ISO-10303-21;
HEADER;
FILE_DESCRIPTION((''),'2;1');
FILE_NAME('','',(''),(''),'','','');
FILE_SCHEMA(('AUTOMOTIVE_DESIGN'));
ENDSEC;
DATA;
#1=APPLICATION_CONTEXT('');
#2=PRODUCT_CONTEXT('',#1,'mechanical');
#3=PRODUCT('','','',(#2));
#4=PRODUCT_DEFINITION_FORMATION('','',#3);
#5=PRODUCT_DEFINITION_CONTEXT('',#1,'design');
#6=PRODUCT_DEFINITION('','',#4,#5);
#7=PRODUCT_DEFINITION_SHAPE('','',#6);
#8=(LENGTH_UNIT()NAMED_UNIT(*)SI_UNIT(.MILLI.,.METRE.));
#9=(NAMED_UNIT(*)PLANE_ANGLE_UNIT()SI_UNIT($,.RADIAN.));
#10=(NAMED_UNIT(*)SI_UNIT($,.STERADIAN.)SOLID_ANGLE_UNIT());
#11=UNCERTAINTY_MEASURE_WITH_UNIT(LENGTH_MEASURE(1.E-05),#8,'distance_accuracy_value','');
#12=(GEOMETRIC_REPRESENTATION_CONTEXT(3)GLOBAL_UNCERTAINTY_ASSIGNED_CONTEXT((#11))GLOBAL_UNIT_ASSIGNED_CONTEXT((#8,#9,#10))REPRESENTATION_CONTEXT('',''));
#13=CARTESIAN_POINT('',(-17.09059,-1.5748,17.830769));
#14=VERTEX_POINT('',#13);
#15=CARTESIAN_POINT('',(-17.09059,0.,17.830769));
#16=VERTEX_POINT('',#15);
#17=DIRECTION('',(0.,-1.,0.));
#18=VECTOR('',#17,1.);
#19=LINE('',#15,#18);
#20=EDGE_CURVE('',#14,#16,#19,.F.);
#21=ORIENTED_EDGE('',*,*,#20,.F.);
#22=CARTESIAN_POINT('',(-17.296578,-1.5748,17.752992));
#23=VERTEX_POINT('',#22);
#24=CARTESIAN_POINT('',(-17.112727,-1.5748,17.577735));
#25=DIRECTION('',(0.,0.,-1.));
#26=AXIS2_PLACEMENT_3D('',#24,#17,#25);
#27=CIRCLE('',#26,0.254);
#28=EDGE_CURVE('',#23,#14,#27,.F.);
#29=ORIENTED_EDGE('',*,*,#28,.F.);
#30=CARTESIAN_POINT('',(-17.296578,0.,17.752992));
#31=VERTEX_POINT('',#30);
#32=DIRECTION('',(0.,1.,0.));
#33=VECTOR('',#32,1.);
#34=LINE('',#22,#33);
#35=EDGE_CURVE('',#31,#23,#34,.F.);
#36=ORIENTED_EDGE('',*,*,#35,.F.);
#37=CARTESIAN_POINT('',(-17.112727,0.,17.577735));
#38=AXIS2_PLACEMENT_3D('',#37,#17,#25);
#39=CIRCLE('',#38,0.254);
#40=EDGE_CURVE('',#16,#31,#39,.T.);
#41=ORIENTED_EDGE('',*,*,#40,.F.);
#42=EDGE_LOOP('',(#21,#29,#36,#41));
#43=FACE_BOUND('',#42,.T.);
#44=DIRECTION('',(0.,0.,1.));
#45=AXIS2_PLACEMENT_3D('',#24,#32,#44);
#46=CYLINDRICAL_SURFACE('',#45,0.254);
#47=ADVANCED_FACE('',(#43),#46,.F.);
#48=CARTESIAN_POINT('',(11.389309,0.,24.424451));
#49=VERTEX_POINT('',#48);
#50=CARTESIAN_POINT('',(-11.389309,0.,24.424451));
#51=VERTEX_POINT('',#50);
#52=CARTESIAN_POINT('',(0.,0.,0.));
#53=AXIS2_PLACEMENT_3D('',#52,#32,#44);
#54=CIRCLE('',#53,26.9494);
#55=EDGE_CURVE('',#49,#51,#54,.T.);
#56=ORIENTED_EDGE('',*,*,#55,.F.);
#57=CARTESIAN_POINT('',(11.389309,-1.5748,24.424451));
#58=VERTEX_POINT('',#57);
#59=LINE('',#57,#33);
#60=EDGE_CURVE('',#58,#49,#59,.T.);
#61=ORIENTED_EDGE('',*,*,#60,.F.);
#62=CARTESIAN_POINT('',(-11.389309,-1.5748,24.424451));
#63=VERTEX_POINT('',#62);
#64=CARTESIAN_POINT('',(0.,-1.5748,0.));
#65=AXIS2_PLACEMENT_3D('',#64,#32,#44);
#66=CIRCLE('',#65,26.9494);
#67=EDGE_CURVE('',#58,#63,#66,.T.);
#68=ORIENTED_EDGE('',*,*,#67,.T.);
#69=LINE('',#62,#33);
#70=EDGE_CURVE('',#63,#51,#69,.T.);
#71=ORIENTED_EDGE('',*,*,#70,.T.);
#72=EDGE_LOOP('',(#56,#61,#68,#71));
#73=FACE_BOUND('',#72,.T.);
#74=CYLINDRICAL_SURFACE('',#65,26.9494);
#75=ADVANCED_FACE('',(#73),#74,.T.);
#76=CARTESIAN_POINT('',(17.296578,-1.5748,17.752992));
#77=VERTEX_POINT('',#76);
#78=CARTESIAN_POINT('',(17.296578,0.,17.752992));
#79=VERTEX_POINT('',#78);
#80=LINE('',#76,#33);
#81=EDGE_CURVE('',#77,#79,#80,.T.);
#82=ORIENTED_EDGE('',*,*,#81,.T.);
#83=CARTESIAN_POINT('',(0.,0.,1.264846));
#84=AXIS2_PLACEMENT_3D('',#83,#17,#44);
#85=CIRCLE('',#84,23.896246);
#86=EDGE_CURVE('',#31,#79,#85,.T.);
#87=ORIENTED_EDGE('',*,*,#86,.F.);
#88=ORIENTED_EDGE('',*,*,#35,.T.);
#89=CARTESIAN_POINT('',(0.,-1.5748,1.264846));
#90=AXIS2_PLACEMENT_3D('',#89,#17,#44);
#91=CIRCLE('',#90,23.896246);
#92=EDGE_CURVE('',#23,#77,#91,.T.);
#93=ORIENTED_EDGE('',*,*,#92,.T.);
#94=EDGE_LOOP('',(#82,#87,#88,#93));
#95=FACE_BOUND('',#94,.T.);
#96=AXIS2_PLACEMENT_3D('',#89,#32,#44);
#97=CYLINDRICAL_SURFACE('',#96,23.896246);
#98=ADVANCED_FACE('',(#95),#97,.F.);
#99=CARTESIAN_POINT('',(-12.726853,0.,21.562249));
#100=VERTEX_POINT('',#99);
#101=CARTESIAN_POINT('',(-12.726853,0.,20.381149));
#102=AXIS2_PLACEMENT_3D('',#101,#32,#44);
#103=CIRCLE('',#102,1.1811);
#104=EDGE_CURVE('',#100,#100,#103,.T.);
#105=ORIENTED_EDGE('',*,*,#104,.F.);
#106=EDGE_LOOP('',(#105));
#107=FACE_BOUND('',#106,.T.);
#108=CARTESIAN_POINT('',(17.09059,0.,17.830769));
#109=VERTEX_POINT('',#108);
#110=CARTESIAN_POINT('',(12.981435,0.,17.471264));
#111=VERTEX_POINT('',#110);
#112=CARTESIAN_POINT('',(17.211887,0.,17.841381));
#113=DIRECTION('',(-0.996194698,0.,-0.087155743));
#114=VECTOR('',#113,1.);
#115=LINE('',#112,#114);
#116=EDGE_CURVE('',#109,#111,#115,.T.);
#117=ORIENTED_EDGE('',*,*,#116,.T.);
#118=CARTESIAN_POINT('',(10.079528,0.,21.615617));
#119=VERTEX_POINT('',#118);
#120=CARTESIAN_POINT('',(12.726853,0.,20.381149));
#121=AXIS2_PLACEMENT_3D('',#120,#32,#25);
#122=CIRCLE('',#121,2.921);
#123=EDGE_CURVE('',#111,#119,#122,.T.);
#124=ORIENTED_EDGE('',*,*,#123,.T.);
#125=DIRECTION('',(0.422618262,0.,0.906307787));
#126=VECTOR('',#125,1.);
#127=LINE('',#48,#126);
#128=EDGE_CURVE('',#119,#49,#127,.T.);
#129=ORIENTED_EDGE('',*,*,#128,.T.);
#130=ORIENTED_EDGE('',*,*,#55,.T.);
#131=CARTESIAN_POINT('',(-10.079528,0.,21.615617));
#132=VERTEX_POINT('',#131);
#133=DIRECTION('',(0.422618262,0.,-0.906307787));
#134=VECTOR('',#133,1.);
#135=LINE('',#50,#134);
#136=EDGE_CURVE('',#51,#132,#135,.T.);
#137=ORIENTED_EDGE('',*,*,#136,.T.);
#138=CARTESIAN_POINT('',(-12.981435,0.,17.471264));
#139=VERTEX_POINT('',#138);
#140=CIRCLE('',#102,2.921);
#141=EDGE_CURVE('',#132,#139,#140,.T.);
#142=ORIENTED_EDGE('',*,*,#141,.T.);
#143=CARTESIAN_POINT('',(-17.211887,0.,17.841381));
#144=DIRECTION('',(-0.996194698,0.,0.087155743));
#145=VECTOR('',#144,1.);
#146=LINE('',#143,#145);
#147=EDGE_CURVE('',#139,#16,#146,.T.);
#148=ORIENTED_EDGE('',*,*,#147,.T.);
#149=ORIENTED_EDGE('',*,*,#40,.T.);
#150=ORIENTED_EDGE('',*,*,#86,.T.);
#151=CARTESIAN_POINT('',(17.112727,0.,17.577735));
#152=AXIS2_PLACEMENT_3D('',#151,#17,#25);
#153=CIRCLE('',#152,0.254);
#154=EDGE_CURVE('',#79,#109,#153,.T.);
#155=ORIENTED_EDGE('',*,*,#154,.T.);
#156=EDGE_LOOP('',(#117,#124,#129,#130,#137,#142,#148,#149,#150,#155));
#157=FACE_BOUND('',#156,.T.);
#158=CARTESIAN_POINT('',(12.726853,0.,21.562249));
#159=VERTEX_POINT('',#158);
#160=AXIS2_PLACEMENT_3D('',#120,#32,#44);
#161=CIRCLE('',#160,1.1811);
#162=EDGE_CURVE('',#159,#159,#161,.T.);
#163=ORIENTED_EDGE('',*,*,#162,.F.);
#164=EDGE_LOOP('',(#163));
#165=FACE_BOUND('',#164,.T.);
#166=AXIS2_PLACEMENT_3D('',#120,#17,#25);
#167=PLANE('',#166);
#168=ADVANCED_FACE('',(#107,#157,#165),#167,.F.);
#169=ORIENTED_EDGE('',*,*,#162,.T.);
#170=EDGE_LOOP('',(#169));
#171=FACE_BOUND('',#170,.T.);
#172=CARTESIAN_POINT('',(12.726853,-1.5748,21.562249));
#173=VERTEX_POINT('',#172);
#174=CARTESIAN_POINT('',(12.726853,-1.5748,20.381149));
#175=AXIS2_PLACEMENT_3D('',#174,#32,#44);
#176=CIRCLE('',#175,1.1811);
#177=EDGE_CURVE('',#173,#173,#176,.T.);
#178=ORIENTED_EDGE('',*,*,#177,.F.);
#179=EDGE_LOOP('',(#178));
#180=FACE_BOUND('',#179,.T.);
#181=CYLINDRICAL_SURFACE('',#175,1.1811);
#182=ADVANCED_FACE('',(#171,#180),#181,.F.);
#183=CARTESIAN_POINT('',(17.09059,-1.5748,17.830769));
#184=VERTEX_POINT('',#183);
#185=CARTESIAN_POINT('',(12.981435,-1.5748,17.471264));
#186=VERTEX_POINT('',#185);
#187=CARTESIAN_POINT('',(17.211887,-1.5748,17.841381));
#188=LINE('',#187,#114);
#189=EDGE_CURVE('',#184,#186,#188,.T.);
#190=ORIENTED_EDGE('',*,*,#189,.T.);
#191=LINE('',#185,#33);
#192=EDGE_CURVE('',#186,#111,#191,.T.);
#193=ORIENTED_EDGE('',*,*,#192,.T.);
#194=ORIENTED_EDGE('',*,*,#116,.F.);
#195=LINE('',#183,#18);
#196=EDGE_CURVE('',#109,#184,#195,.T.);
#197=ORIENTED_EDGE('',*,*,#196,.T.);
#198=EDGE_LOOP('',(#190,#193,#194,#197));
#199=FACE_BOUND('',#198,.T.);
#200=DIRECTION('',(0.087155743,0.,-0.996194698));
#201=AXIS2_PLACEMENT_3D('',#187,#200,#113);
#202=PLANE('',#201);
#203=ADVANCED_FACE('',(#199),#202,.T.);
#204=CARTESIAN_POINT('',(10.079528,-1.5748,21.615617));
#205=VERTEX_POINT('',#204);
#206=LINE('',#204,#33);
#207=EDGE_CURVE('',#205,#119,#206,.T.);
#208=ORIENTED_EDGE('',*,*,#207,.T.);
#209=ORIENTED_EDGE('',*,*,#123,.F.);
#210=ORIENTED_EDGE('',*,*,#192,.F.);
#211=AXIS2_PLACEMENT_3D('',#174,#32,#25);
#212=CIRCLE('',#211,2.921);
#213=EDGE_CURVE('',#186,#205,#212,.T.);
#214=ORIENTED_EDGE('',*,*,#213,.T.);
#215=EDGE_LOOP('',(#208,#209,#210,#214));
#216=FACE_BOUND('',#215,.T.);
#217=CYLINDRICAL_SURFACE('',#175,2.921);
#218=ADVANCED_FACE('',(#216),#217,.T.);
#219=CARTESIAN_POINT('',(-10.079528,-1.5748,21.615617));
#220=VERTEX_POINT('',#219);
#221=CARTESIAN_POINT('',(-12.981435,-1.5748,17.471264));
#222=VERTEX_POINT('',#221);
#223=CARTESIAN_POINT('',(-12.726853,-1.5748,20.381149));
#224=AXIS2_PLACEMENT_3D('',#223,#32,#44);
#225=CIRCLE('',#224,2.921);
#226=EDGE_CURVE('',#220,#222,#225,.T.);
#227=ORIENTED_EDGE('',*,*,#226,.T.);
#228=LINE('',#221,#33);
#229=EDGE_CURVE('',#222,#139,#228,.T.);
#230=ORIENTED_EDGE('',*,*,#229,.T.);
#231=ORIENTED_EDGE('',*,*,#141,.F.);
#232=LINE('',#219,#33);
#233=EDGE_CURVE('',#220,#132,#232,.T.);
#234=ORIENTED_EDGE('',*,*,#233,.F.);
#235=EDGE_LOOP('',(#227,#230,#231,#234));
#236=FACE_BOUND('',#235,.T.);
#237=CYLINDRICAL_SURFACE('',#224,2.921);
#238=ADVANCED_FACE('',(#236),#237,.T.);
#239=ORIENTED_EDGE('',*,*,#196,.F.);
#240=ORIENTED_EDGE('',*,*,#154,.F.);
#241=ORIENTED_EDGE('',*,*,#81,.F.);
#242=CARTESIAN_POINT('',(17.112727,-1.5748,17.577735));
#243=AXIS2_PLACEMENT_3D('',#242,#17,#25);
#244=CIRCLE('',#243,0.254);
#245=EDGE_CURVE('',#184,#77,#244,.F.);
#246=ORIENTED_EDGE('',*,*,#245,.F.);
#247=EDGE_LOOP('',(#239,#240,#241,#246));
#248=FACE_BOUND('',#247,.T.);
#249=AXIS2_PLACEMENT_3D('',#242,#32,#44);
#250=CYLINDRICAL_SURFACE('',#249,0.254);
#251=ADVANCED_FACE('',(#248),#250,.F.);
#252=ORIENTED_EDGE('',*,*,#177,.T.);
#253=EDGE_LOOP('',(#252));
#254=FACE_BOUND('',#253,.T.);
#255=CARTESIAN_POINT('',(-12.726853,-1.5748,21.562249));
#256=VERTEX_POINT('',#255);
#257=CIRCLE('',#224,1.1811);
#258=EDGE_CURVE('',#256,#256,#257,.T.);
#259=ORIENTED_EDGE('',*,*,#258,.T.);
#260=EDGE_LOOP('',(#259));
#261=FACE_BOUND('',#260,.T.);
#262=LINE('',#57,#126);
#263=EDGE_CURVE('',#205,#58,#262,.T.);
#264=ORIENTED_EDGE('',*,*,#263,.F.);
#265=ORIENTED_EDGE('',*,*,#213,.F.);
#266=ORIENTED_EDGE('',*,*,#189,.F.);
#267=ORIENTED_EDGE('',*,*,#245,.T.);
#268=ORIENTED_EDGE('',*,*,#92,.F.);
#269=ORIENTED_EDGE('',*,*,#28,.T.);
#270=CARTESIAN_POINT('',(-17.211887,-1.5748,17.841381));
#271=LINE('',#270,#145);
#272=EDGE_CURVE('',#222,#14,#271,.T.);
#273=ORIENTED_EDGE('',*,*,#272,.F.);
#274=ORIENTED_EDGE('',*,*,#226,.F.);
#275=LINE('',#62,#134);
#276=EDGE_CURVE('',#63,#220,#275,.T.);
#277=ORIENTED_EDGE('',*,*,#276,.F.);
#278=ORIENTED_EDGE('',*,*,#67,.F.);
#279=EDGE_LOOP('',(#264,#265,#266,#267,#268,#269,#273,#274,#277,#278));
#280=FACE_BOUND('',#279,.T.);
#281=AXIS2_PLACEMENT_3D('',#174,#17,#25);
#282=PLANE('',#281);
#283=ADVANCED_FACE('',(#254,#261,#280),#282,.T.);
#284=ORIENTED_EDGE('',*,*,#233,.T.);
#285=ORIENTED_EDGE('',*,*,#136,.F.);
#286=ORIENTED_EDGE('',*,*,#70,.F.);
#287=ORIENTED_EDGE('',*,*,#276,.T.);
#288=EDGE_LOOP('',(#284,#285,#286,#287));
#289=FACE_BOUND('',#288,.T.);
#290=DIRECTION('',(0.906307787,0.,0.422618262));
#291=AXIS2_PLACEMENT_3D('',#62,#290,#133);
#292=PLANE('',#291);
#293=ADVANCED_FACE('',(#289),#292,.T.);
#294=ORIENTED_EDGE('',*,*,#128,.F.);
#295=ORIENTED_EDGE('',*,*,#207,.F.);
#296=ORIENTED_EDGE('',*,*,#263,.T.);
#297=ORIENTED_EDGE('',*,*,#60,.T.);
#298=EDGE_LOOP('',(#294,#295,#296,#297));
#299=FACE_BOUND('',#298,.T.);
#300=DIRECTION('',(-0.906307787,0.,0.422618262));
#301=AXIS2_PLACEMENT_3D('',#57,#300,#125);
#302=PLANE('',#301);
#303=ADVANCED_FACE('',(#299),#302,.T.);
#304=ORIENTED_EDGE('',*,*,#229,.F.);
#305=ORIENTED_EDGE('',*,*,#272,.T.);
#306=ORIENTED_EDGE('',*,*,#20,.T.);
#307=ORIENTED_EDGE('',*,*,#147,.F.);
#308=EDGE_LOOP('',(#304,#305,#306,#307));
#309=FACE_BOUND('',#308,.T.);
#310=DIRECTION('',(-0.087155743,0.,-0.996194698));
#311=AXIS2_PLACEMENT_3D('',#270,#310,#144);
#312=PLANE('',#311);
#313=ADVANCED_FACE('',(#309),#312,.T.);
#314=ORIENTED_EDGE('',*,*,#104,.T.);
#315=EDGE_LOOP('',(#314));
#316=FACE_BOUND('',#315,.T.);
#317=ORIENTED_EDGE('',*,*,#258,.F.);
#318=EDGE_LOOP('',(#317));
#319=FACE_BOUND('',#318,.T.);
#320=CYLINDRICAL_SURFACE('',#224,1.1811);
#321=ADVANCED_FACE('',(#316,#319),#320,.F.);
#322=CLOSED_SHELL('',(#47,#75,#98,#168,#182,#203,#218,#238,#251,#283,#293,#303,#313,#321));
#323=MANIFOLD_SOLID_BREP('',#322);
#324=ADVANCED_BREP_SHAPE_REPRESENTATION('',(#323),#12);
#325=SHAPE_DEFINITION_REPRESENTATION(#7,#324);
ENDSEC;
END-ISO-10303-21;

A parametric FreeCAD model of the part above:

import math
import FreeCAD as App
import Part
import Sketcher
from FreeCAD import Vector
Q = App.Units.Quantity


def edges_at(feature, points):
    """Names of the edges that pass closest to the given points."""
    edges = feature.Shape.Edges
    near = lambda p: min(range(len(edges)), key=lambda i: edges[i].distToShape(Part.Vertex(*p))[0])
    return sorted({f"Edge{near(p) + 1}" for p in points})

doc = App.newDocument("Part")
body = doc.addObject("PartDesign::Body", "Body")

sketch1 = body.newObject("Sketcher::SketchObject", "Sketch")
sketch1.AttachmentSupport = (doc.getObject("XZ_Plane"), [""])
sketch1.MapMode = "FlatFace"
sketch1.addGeometry([
    Part.LineSegment(Vector(10.079528, 21.615617, 0), Vector(11.389309, 24.424451, 0)),
    Part.ArcOfCircle(Part.Circle(Vector(0, 0, 0), Vector(0, 0, 1), 26.9494), math.radians(115), math.radians(425)),
    Part.LineSegment(Vector(-11.389309, 24.424451, 0), Vector(-10.079528, 21.615617, 0)),
    Part.ArcOfCircle(Part.Circle(Vector(-12.726853, 20.381149, 0), Vector(0, 0, 1), 2.921), math.radians(-95), math.radians(25)),
    Part.LineSegment(Vector(-12.981435, 17.471264, 0), Vector(-17.211887, 17.841381, 0)),
    Part.ArcOfCircle(Part.Circle(Vector(0, 1.264846, 0), Vector(0, 0, 1), 23.896246), math.radians(136.077254), math.radians(403.922746)),
    Part.LineSegment(Vector(17.211887, 17.841381, 0), Vector(12.981435, 17.471264, 0)),
    Part.ArcOfCircle(Part.Circle(Vector(12.726853, 20.381149, 0), Vector(0, 0, 1), 2.921), math.radians(155), math.radians(275)),
    Part.Circle(Vector(12.726853, 20.381149, 0), Vector(0, 0, 1), 1.1811),
    Part.Circle(Vector(-12.726853, 20.381149, 0), Vector(0, 0, 1), 1.1811),
], False)
sketch1.addConstraint([
    Sketcher.Constraint("Coincident", 0, 2, 1, 2),
    Sketcher.Constraint("Coincident", 1, 1, 2, 1),
    Sketcher.Constraint("Tangent", 2, 2, 3, 2),
    Sketcher.Constraint("Tangent", 3, 1, 4, 1),
    Sketcher.Constraint("Coincident", 4, 2, 5, 1),
    Sketcher.Constraint("Coincident", 5, 2, 6, 1),
    Sketcher.Constraint("Tangent", 6, 2, 7, 2),
    Sketcher.Constraint("Tangent", 7, 1, 0, 1),
    Sketcher.Constraint("Coincident", 1, 3, -1, 1),
    Sketcher.Constraint("Coincident", 8, 3, 7, 3),
    Sketcher.Constraint("Coincident", 9, 3, 3, 3),
    Sketcher.Constraint("Equal", 3, 7),
    Sketcher.Constraint("Equal", 8, 9),
    Sketcher.Constraint("Symmetric", 3, 3, 7, 3, -2),
    Sketcher.Constraint("Symmetric", 4, 2, 5, 2, -2),
    Sketcher.Constraint("Horizontal", 0, 2, 1, 1),
    Sketcher.Constraint("Diameter", 8, Q("0.093 in")),
    Sketcher.Constraint("Angle", 0, Q("65 deg")),
    Sketcher.Constraint("Angle", 4, Q("175 deg")),
    Sketcher.Constraint("Radius", 1, Q("1.061 in")),
    Sketcher.Constraint("Radius", 3, Q("0.115 in")),
    Sketcher.Constraint("Radius", 5, Q("23.896246 mm")),
    Sketcher.Constraint("DistanceY", -1, 1, 3, 3, Q("20.381149 mm")),
    Sketcher.Constraint("DistanceX", -1, 1, 0, 2, Q("11.389309 mm")),
    Sketcher.Constraint("DistanceY", -1, 1, 4, 2, Q("17.841381 mm")),
])
pad1 = body.newObject("PartDesign::Pad", "Pad")
pad1.Profile = sketch1
pad1.Length = Q("0.062 in")
doc.recompute()

fillet = body.newObject("PartDesign::Fillet", "Fillet")
fillet.Base = (pad1, edges_at(pad1, [(17.212, -0.787, 17.841), (-17.212, -0.787, 17.841)]))
fillet.Radius = Q("0.01 in")

doc.recompute()
